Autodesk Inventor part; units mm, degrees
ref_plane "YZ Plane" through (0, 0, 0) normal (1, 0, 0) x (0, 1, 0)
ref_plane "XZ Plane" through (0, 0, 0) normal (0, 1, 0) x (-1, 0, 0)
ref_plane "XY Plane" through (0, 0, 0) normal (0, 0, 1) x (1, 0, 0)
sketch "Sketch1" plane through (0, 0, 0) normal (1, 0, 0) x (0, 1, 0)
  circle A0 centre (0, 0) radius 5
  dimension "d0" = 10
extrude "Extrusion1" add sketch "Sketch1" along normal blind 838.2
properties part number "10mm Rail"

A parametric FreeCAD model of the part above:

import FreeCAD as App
import Part
import Sketcher
from FreeCAD import Vector
Q = App.Units.Quantity

doc = App.newDocument("Part")
body = doc.addObject("PartDesign::Body", "Body")

# Sketch on YZ plane
sketch1 = doc.addObject("Sketcher::SketchObject", "Sketch")
body.addObject(sketch1)
sketch1.AttachmentSupport = (doc.YZ_Plane, [""])
sketch1.MapMode = "FlatFace"
sketch1.addGeometry(Part.Circle(Vector(0, 0, 0), Vector(0, 0, 1), 5), False)
sketch1.addConstraint(Sketcher.Constraint("Coincident", 0, 3, -1, 1))
sketch1.addConstraint(Sketcher.Constraint("Diameter", 0, Q("0.3937 in")))
pad1 = doc.addObject("PartDesign::Pad", "Pad")
body.addObject(pad1)
pad1.Profile = sketch1
pad1.Length = Q("33 in")

doc.recompute()
